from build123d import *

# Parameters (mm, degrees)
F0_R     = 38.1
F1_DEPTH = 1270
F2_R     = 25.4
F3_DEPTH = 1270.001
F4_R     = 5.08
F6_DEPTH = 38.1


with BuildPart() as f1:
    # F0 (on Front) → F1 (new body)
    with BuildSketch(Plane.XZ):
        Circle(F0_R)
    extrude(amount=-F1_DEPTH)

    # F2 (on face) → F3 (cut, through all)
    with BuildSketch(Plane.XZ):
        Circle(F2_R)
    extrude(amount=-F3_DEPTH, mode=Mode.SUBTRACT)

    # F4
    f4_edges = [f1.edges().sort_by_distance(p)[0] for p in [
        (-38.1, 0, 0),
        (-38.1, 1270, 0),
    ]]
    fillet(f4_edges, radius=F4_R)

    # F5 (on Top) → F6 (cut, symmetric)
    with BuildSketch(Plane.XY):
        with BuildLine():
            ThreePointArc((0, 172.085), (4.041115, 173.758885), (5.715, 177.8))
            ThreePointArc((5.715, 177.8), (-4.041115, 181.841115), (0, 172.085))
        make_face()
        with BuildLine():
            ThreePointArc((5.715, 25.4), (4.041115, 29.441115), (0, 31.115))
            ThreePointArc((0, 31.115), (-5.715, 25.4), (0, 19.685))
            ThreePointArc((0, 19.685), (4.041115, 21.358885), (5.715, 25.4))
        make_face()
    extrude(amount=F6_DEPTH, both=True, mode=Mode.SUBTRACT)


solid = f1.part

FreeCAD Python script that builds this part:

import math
import FreeCAD as App
import Part
import Sketcher
from FreeCAD import Vector
Q = App.Units.Quantity


def edges_at(feature, points):
    """Names of the edges that pass closest to the given points."""
    edges = feature.Shape.Edges
    near = lambda p: min(range(len(edges)), key=lambda i: edges[i].distToShape(Part.Vertex(*p))[0])
    return sorted({f"Edge{near(p) + 1}" for p in points})

doc = App.newDocument("Part")
params = doc.addObject("Spreadsheet::Sheet", "Params")
for row, (alias, value) in enumerate([
    ("sketch1_diameter", "3 in"),
    ("pad1_length", "50 in"),
    ("sketch2_diameter", "2 in"),
    ("fillet_radius", "0.2 in"),
    ("sketch3_radius", "0.225 in"),
    ("pocket2_length", "3 in"),
], start=1):
    params.set(f"A{row}", alias)
    params.set(f"B{row}", "=" + value)
    params.setAlias(f"B{row}", alias)

body = doc.addObject("PartDesign::Body", "Body")

sketch1 = body.newObject("Sketcher::SketchObject", "Sketch")
sketch1.AttachmentSupport = (doc.getObject("XZ_Plane"), [""])
sketch1.MapMode = "FlatFace"
sketch1.addGeometry(Part.Circle(Vector(0, 0, 0), Vector(0, 0, 1), 38), False)
sketch1.addConstraint(Sketcher.Constraint("Coincident", 0, 3, -1, 1))
sketch1.addConstraint(Sketcher.Constraint("Diameter", 0, Q("3 in")))
sketch1.setExpression("Constraints[1]", "Params.sketch1_diameter")
pad1 = body.newObject("PartDesign::Pad", "Pad")
pad1.Profile = sketch1
pad1.setExpression("Length", "Params.pad1_length")
pad1.Reversed = True

sketch2 = body.newObject("Sketcher::SketchObject", "Sketch001")
sketch2.AttachmentSupport = (doc.getObject("XZ_Plane"), [""])
sketch2.MapMode = "FlatFace"
sketch2.addGeometry(Part.Circle(Vector(0, 0, 0), Vector(0, 0, 1), 25), False)
sketch2.addConstraint(Sketcher.Constraint("Coincident", 0, 3, -1, 1))
sketch2.addConstraint(Sketcher.Constraint("Diameter", 0, Q("2 in")))
sketch2.setExpression("Constraints[1]", "Params.sketch2_diameter")
pocket1 = body.newObject("PartDesign::Pocket", "Pocket")
pocket1.Profile = sketch2
pocket1.Type = "ThroughAll"
doc.recompute()

fillet = body.newObject("PartDesign::Fillet", "Fillet")
fillet.Base = (pocket1, edges_at(pocket1, [(-38.1, 0, 0), (-38.1, 1270, 0)]))
fillet.setExpression("Radius", "Params.fillet_radius")

sketch3 = body.newObject("Sketcher::SketchObject", "Sketch002")
sketch3.AttachmentSupport = (doc.getObject("XY_Plane"), [""])
sketch3.MapMode = "FlatFace"
sketch3.addGeometry(Part.ArcOfCircle(Part.Circle(Vector(0, 178, 0), Vector(0, 0, 1), 6), math.radians(-90), math.radians(0)), False)
sketch3.addGeometry(Part.ArcOfCircle(Part.Circle(Vector(0, 178, 0), Vector(0, 0, 1), 6), math.radians(0), math.radians(270)), False)
sketch3.addGeometry(Part.ArcOfCircle(Part.Circle(Vector(0, 25, 0), Vector(0, 0, 1), 6), math.radians(0), math.radians(90)), False)
sketch3.addGeometry(Part.ArcOfCircle(Part.Circle(Vector(0, 25, 0), Vector(0, 0, 1), 6), math.radians(90), math.radians(270)), False)
sketch3.addGeometry(Part.ArcOfCircle(Part.Circle(Vector(0, 25, 0), Vector(0, 0, 1), 6), math.radians(-90), math.radians(0)), False)
sketch3.addConstraint(Sketcher.Constraint("Tangent", 0, 1, 1, 2))
sketch3.addConstraint(Sketcher.Constraint("Coincident", 1, 1, 0, 2))
sketch3.addConstraint(Sketcher.Constraint("Tangent", 2, 2, 3, 1))
sketch3.addConstraint(Sketcher.Constraint("Tangent", 3, 2, 4, 1))
sketch3.addConstraint(Sketcher.Constraint("Tangent", 4, 2, 2, 1))
sketch3.addConstraint(Sketcher.Constraint("Equal", 1, 2))
sketch3.addConstraint(Sketcher.Constraint("PointOnObject", 0, 3, -2))
sketch3.addConstraint(Sketcher.Constraint("PointOnObject", 2, 3, -2))
sketch3.addConstraint(Sketcher.Constraint("PointOnObject", 0, 1, -2))
sketch3.addConstraint(Sketcher.Constraint("PointOnObject", 2, 2, -2))
sketch3.addConstraint(Sketcher.Constraint("PointOnObject", 3, 2, -2))
sketch3.addConstraint(Sketcher.Constraint("Horizontal", 0, 3, 1, 1))
sketch3.addConstraint(Sketcher.Constraint("Horizontal", 3, 3, 4, 2))
sketch3.addConstraint(Sketcher.Constraint("DistanceY", -1, 1, 0, 3, Q("7 in")))
sketch3.addConstraint(Sketcher.Constraint("DistanceY", -1, 1, 2, 3, Q("1 in")))
sketch3.addConstraint(Sketcher.Constraint("Radius", 0, Q("0.225 in")))
sketch3.setExpression("Constraints[15]", "Params.sketch3_radius")
pocket2 = body.newObject("PartDesign::Pocket", "Pocket001")
pocket2.Profile = sketch3
pocket2.setExpression("Length", "Params.pocket2_length")
pocket2.Midplane = True

doc.recompute()
